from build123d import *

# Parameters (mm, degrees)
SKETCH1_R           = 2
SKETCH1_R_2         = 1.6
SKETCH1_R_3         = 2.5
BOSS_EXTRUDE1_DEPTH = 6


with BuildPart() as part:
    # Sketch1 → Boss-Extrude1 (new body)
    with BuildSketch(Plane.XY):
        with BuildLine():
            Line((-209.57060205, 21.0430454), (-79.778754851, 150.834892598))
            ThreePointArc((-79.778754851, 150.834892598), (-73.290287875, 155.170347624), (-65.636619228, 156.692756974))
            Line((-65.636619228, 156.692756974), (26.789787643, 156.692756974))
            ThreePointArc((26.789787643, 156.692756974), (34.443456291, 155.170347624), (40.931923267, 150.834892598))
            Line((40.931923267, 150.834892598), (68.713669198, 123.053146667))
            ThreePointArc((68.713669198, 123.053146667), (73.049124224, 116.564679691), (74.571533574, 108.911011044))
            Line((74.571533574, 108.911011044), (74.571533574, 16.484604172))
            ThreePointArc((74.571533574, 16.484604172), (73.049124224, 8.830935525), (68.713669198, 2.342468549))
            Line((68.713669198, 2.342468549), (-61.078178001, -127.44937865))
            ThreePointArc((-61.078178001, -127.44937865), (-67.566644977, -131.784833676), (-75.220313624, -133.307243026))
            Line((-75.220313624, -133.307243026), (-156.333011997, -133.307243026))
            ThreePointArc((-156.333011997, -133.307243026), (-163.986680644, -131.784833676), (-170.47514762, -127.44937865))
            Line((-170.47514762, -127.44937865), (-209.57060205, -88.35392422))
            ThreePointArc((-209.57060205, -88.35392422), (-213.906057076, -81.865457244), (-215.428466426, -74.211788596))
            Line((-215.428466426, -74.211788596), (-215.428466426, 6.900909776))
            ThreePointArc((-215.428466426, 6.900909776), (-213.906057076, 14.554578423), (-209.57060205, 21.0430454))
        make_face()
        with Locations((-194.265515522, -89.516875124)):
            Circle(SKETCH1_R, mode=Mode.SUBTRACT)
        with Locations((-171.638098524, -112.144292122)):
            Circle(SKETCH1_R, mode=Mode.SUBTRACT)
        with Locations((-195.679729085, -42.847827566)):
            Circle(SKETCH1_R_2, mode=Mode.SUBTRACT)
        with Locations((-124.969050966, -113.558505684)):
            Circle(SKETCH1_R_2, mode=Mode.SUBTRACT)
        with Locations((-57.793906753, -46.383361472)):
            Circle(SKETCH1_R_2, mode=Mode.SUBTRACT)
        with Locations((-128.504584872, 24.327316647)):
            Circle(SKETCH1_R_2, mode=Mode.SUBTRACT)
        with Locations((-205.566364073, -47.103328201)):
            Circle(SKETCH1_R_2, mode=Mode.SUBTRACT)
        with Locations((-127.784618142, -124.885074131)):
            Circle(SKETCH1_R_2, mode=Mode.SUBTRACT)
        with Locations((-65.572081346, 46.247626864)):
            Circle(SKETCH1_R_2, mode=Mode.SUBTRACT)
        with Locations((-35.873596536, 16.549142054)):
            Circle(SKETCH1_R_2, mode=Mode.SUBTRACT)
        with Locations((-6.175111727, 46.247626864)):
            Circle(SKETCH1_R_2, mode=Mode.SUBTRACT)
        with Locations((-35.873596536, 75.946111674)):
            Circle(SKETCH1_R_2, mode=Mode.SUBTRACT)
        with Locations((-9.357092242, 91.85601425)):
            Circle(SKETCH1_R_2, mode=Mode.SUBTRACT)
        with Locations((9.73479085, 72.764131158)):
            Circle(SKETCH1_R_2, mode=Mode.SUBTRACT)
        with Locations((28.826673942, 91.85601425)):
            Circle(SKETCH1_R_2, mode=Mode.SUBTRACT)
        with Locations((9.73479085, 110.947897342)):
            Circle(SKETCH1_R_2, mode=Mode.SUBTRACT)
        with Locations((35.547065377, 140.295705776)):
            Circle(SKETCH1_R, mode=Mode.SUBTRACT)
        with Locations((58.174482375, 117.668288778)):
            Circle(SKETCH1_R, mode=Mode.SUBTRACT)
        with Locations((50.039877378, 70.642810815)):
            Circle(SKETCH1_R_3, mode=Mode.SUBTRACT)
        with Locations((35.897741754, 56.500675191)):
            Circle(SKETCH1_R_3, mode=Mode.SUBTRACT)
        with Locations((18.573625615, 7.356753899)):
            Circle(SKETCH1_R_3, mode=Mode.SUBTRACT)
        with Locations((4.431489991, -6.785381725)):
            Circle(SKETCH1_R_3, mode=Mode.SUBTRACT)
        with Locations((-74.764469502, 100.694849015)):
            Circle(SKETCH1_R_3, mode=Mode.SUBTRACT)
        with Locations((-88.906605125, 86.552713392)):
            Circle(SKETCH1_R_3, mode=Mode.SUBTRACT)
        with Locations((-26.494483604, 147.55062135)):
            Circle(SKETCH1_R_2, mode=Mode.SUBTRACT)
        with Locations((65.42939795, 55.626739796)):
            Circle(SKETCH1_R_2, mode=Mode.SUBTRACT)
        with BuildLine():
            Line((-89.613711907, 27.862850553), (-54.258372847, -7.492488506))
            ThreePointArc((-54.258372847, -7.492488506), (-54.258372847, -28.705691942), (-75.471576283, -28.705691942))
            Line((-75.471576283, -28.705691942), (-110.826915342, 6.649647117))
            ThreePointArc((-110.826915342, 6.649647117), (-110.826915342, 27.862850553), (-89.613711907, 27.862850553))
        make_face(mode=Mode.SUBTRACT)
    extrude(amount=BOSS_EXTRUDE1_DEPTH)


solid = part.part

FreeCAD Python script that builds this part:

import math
import FreeCAD as App
import Part
import Sketcher
Q = App.Units.Quantity

doc = App.newDocument("Part")
body = doc.addObject("PartDesign::Body", "Body")

# Sketch on XY plane
sketch1 = body.newObject("Sketcher::SketchObject", "Sketch")
sketch1.AttachmentSupport = (doc.getObject("XY_Plane"), [""])
sketch1.MapMode = "FlatFace"
sketch1.addGeometry([
    Part.LineSegment(App.Vector(-79.8, 150.8, 0), App.Vector(-209.6, 21, 0)),  # 0
    Part.ArcOfCircle(Part.Circle(App.Vector(-195.4, 6.9, 0), App.Vector(0, 0, 1), 20), math.radians(135), math.radians(180)),  # 1
    Part.LineSegment(App.Vector(-215.4, 6.9, 0), App.Vector(-215.4, -74.2, 0)),  # 2
    Part.ArcOfCircle(Part.Circle(App.Vector(-195.4, -74.2, 0), App.Vector(0, 0, 1), 20), math.radians(180), math.radians(225)),  # 3
    Part.LineSegment(App.Vector(-209.6, -88.4, 0), App.Vector(-170.5, -127.4, 0)),  # 4
    Part.ArcOfCircle(Part.Circle(App.Vector(-156.3, -113.3, 0), App.Vector(0, 0, 1), 20), math.radians(-135), math.radians(-90)),  # 5
    Part.LineSegment(App.Vector(-156.3, -133.3, 0), App.Vector(-75.2, -133.3, 0)),  # 6
    Part.ArcOfCircle(Part.Circle(App.Vector(-75.2, -113.3, 0), App.Vector(0, 0, 1), 20), math.radians(-90), math.radians(-45)),  # 7
    Part.LineSegment(App.Vector(-61.1, -127.4, 0), App.Vector(68.7, 2.3, 0)),  # 8
    Part.ArcOfCircle(Part.Circle(App.Vector(54.6, 16.5, 0), App.Vector(0, 0, 1), 20), math.radians(-45), math.radians(0)),  # 9
    Part.LineSegment(App.Vector(74.6, 16.5, 0), App.Vector(74.6, 108.9, 0)),  # 10
    Part.ArcOfCircle(Part.Circle(App.Vector(54.6, 108.9, 0), App.Vector(0, 0, 1), 20), math.radians(0), math.radians(45)),  # 11
    Part.LineSegment(App.Vector(68.7, 123.1, 0), App.Vector(40.9, 150.8, 0)),  # 12
    Part.ArcOfCircle(Part.Circle(App.Vector(26.8, 136.7, 0), App.Vector(0, 0, 1), 20), math.radians(45), math.radians(90)),  # 13
    Part.LineSegment(App.Vector(26.8, 156.7, 0), App.Vector(-65.6, 156.7, 0)),  # 14
    Part.ArcOfCircle(Part.Circle(App.Vector(-65.6, 136.7, 0), App.Vector(0, 0, 1), 20), math.radians(90), math.radians(135)),  # 15
    Part.Circle(App.Vector(4.4, -6.8, 0), App.Vector(0, 0, 1), 2.5),  # 16
    Part.Circle(App.Vector(18.6, 7.4, 0), App.Vector(0, 0, 1), 2.5),  # 17
    Part.Circle(App.Vector(-57.8, -46.4, 0), App.Vector(0, 0, 1), 1.6),  # 18
    Part.Circle(App.Vector(-127.8, -124.9, 0), App.Vector(0, 0, 1), 1.6),  # 19
    Part.Circle(App.Vector(-125, -113.6, 0), App.Vector(0, 0, 1), 1.6),  # 20
    Part.Circle(App.Vector(-171.6, -112.1, 0), App.Vector(0, 0, 1), 2),  # 21
    Part.Circle(App.Vector(-194.3, -89.5, 0), App.Vector(0, 0, 1), 2),  # 22
    Part.LineSegment(App.Vector(-89.6, 27.9, 0), App.Vector(-54.3, -7.5, 0)),  # 23
    Part.ArcOfCircle(Part.Circle(App.Vector(-64.9, -18.1, 0), App.Vector(0, 0, 1), 15), math.radians(-135), math.radians(45)),  # 24
    Part.LineSegment(App.Vector(-75.5, -28.7, 0), App.Vector(-110.8, 6.6, 0)),  # 25
    Part.ArcOfCircle(Part.Circle(App.Vector(-100.2, 17.3, 0), App.Vector(0, 0, 1), 15), math.radians(45), math.radians(225)),  # 26
    Part.Circle(App.Vector(-195.7, -42.8, 0), App.Vector(0, 0, 1), 1.6),  # 27
    Part.Circle(App.Vector(-205.6, -47.1, 0), App.Vector(0, 0, 1), 1.6),  # 28
    Part.Circle(App.Vector(65.4, 55.6, 0), App.Vector(0, 0, 1), 1.6),  # 29
    Part.Circle(App.Vector(35.9, 56.5, 0), App.Vector(0, 0, 1), 2.5),  # 30
    Part.Circle(App.Vector(50, 70.6, 0), App.Vector(0, 0, 1), 2.5),  # 31
    Part.Circle(App.Vector(9.7, 72.8, 0), App.Vector(0, 0, 1), 1.6),  # 32
    Part.Circle(App.Vector(-35.9, 16.5, 0), App.Vector(0, 0, 1), 1.6),  # 33
    Part.Circle(App.Vector(-6.2, 46.2, 0), App.Vector(0, 0, 1), 1.6),  # 34
    Part.Circle(App.Vector(-65.6, 46.2, 0), App.Vector(0, 0, 1), 1.6),  # 35
    Part.Circle(App.Vector(-35.9, 75.9, 0), App.Vector(0, 0, 1), 1.6),  # 36
    Part.Circle(App.Vector(28.8, 91.9, 0), App.Vector(0, 0, 1), 1.6),  # 37
    Part.Circle(App.Vector(9.7, 110.9, 0), App.Vector(0, 0, 1), 1.6),  # 38
    Part.Circle(App.Vector(58.2, 117.7, 0), App.Vector(0, 0, 1), 2),  # 39
    Part.Circle(App.Vector(35.5, 140.3, 0), App.Vector(0, 0, 1), 2),  # 40
    Part.Circle(App.Vector(-9.4, 91.9, 0), App.Vector(0, 0, 1), 1.6),  # 41
    Part.Circle(App.Vector(-26.5, 147.6, 0), App.Vector(0, 0, 1), 1.6),  # 42
    Part.Circle(App.Vector(-128.5, 24.3, 0), App.Vector(0, 0, 1), 1.6),  # 43
    Part.Circle(App.Vector(-88.9, 86.6, 0), App.Vector(0, 0, 1), 2.5),  # 44
    Part.Circle(App.Vector(-74.8, 100.7, 0), App.Vector(0, 0, 1), 2.5),  # 45
], False)
sketch1.addConstraint([
    Sketcher.Constraint("Tangent", 0, 2, 1, 1),
    Sketcher.Constraint("Tangent", 1, 2, 2, 1),
    Sketcher.Constraint("Tangent", 2, 2, 3, 1),
    Sketcher.Constraint("Tangent", 3, 2, 4, 1),
    Sketcher.Constraint("Tangent", 4, 2, 5, 1),
    Sketcher.Constraint("Tangent", 5, 2, 6, 1),
    Sketcher.Constraint("Tangent", 6, 2, 7, 1),
    Sketcher.Constraint("Tangent", 7, 2, 8, 1),
    Sketcher.Constraint("Tangent", 8, 2, 9, 1),
    Sketcher.Constraint("Tangent", 9, 2, 10, 1),
    Sketcher.Constraint("Tangent", 10, 2, 11, 1),
    Sketcher.Constraint("Tangent", 11, 2, 12, 1),
    Sketcher.Constraint("Tangent", 12, 2, 13, 1),
    Sketcher.Constraint("Tangent", 13, 2, 14, 1),
    Sketcher.Constraint("Tangent", 14, 2, 15, 1),
    Sketcher.Constraint("Tangent", 15, 2, 0, 1),
    Sketcher.Constraint("Tangent", 23, 2, 24, 2),
    Sketcher.Constraint("Tangent", 24, 1, 25, 1),
    Sketcher.Constraint("Tangent", 25, 2, 26, 2),
    Sketcher.Constraint("Tangent", 26, 1, 23, 1),
    Sketcher.Constraint("Vertical", 2),
    Sketcher.Constraint("Horizontal", 6),
    Sketcher.Constraint("Vertical", 10),
    Sketcher.Constraint("Horizontal", 14),
    Sketcher.Constraint("Equal", 1, 3),
    Sketcher.Constraint("Equal", 3, 5),
    Sketcher.Constraint("Equal", 5, 7),
    Sketcher.Constraint("Equal", 7, 9),
    Sketcher.Constraint("Equal", 9, 11),
    Sketcher.Constraint("Equal", 11, 13),
    Sketcher.Constraint("Equal", 13, 15),
    Sketcher.Constraint("Equal", 16, 17),
    Sketcher.Constraint("Equal", 18, 19),
    Sketcher.Constraint("Equal", 19, 20),
    Sketcher.Constraint("Equal", 21, 22),
    Sketcher.Constraint("Equal", 24, 26),
    Sketcher.Constraint("Equal", 20, 27),
    Sketcher.Constraint("Equal", 27, 28),
    Sketcher.Constraint("Equal", 28, 29),
    Sketcher.Constraint("Equal", 17, 30),
    Sketcher.Constraint("Equal", 30, 31),
    Sketcher.Constraint("Equal", 29, 32),
    Sketcher.Constraint("Equal", 32, 33),
    Sketcher.Constraint("Equal", 33, 34),
    Sketcher.Constraint("Equal", 34, 35),
    Sketcher.Constraint("Equal", 35, 36),
    Sketcher.Constraint("Equal", 36, 37),
    Sketcher.Constraint("Equal", 37, 38),
    Sketcher.Constraint("Equal", 22, 39),
    Sketcher.Constraint("Equal", 39, 40),
    Sketcher.Constraint("Equal", 38, 41),
    Sketcher.Constraint("Equal", 41, 42),
    Sketcher.Constraint("Equal", 42, 43),
    Sketcher.Constraint("Equal", 31, 44),
    Sketcher.Constraint("Equal", 44, 45),
    Sketcher.Constraint("Perpendicular", 0, 4),
    Sketcher.Constraint("Perpendicular", 4, 8),
    Sketcher.Constraint("Perpendicular", 8, 12),
    Sketcher.Constraint("Parallel", 12, 23),
    Sketcher.Constraint("Horizontal", 34, 3, 35, 3),
    Sketcher.Constraint("Horizontal", 37, 3, 41, 3),
    Sketcher.Constraint("Horizontal", 4, 2, 7, 2),
    Sketcher.Constraint("Vertical", 33, 3, 36, 3),
    Sketcher.Constraint("Vertical", 32, 3, 38, 3),
    Sketcher.Constraint("Equal", 6, 2),
    Sketcher.Constraint("Equal", 14, 10),
    Sketcher.Constraint("Diameter", 16, Q("5 mm")),
    Sketcher.Constraint("Diameter", 21, Q("4 mm")),
    Sketcher.Constraint("Radius", 1, Q("20 mm")),
    Sketcher.Constraint("Radius", 24, Q("15 mm")),
    Sketcher.Constraint("Diameter", 18, Q("3.2 mm")),
    Sketcher.Constraint("Distance", 23, Q("50 mm")),
    Sketcher.Constraint("DistanceX", 1, 3, 9, 3, Q("250 mm")),
    Sketcher.Constraint("DistanceX", 6, 1, 6, 2, Q("81.112698 mm")),
    Sketcher.Constraint("DistanceX", 21, 3, -1, 1, Q("171.638099 mm")),
    Sketcher.Constraint("DistanceY", 1, 3, 11, 3, Q("102.010101 mm")),
    Sketcher.Constraint("DistanceY", 19, 3, 22, 3, Q("35.368199 mm")),
    Sketcher.Constraint("DistanceX", 24, 3, 17, 3, Q("83.4386 mm")),
    Sketcher.Constraint("DistanceY", 28, 3, 27, 3, Q("4.255501 mm")),
    Sketcher.Constraint("DistanceY", 31, 3, 11, 3, Q("38.2682 mm")),
    Sketcher.Constraint("DistanceX", 34, 3, 16, 3, Q("10.606602 mm")),
    Sketcher.Constraint("DistanceY", 36, 3, 44, 3, Q("10.606602 mm")),
    Sketcher.Constraint("Distance", 0, Q("183.553391 mm")),
    Sketcher.Constraint("DistanceY", -1, 1, 1, 3, Q("6.90091 mm")),
    Sketcher.Constraint("DistanceX", 5, 3, -1, 1, Q("156.333012 mm")),
    Sketcher.Constraint("DistanceX", -1, 1, 16, 3, Q("4.43149 mm")),
    Sketcher.Constraint("DistanceY", 16, 3, -1, 1, Q("6.785382 mm")),
    Sketcher.Constraint("DistanceY", 18, 3, -1, 1, Q("46.383361 mm")),
    Sketcher.Constraint("DistanceX", 19, 3, -1, 1, Q("127.784618 mm")),
    Sketcher.Constraint("DistanceX", 20, 3, -1, 1, Q("124.969051 mm")),
    Sketcher.Constraint("DistanceY", 24, 3, -1, 1, Q("18.09909 mm")),
    Sketcher.Constraint("DistanceX", 27, 3, -1, 1, Q("195.679729 mm")),
    Sketcher.Constraint("DistanceY", 28, 3, -1, 1, Q("47.103328 mm")),
    Sketcher.Constraint("DistanceY", -1, 1, 29, 3, Q("55.62674 mm")),
    Sketcher.Constraint("DistanceX", -1, 1, 30, 3, Q("35.897742 mm")),
    Sketcher.Constraint("DistanceX", -1, 1, 32, 3, Q("9.734791 mm")),
    Sketcher.Constraint("DistanceY", -1, 1, 32, 3, Q("72.764131 mm")),
    Sketcher.Constraint("DistanceX", 35, 3, -1, 1, Q("65.572081 mm")),
    Sketcher.Constraint("DistanceY", -1, 1, 36, 3, Q("75.946112 mm")),
    Sketcher.Constraint("DistanceY", -1, 1, 39, 3, Q("117.668289 mm")),
    Sketcher.Constraint("DistanceY", -1, 1, 42, 3, Q("147.550621 mm")),
    Sketcher.Constraint("DistanceX", 45, 3, -1, 1, Q("74.76447 mm")),
    Sketcher.Constraint("DistanceY", -1, 1, 45, 3, Q("100.694849 mm")),
    Sketcher.Constraint("DistanceX", 26, 1, -1, 1, Q("89.613712 mm")),
    Sketcher.Constraint("DistanceY", 17, 3, 9, 3, Q("9.12785 mm")),
    Sketcher.Constraint("DistanceX", 18, 3, 9, 3, Q("112.36544 mm")),
    Sketcher.Constraint("DistanceY", 19, 3, 5, 3, Q("11.577831 mm")),
    Sketcher.Constraint("DistanceY", 19, 3, 20, 3, Q("11.326568 mm")),
    Sketcher.Constraint("DistanceY", 5, 3, 21, 3, Q("1.162951 mm")),
    Sketcher.Constraint("DistanceX", 3, 3, 22, 3, Q("1.162951 mm")),
    Sketcher.Constraint("DistanceX", 28, 3, 22, 3, Q("11.300849 mm")),
    Sketcher.Constraint("DistanceX", 13, 3, 29, 3, Q("38.63961 mm")),
    Sketcher.Constraint("DistanceY", 9, 3, 30, 3, Q("40.016071 mm")),
    Sketcher.Constraint("DistanceX", 31, 3, 29, 3, Q("15.389521 mm")),
    Sketcher.Constraint("DistanceX", 24, 3, 33, 3, Q("28.991378 mm")),
    Sketcher.Constraint("DistanceY", 17, 3, 33, 3, Q("9.192388 mm")),
    Sketcher.Constraint("DistanceY", 34, 3, 30, 3, Q("10.253048 mm")),
    Sketcher.Constraint("DistanceX", 37, 3, 11, 3, Q("25.74486 mm")),
    Sketcher.Constraint("DistanceY", 30, 3, 37, 3, Q("35.355339 mm")),
    Sketcher.Constraint("DistanceY", 38, 3, 13, 3, Q("25.74486 mm")),
    Sketcher.Constraint("DistanceX", 11, 3, 39, 3, Q("3.602949 mm")),
    Sketcher.Constraint("DistanceY", 13, 3, 40, 3, Q("3.602949 mm")),
    Sketcher.Constraint("DistanceX", 40, 3, 11, 3, Q("19.024468 mm")),
    Sketcher.Constraint("DistanceX", 41, 3, 34, 3, Q("3.181981 mm")),
    Sketcher.Constraint("DistanceX", 42, 3, 13, 3, Q("53.284271 mm")),
    Sketcher.Constraint("DistanceX", 43, 3, 26, 3, Q("28.284271 mm")),
    Sketcher.Constraint("DistanceY", 43, 3, 35, 3, Q("21.92031 mm")),
    Sketcher.Constraint("DistanceX", 44, 3, 36, 3, Q("53.033009 mm")),
])
pad1 = body.newObject("PartDesign::Pad", "Pad")
pad1.Profile = sketch1
pad1.Length = 6

doc.recompute()
